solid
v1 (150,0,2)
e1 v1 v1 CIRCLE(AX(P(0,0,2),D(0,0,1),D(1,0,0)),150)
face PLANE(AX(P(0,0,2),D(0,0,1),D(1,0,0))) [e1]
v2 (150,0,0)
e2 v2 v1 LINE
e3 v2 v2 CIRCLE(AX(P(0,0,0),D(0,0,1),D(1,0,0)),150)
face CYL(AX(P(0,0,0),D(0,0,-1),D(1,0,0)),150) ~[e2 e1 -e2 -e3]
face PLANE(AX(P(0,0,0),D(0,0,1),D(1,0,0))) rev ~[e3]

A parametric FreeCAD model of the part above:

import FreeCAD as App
import Part
import Sketcher
Q = App.Units.Quantity

doc = App.newDocument("Part")
body = doc.addObject("PartDesign::Body", "Body")

# Sketch on XY plane
sketch1 = doc.addObject("Sketcher::SketchObject", "Sketch")
body.addObject(sketch1)
sketch1.AttachmentSupport = (doc.XY_Plane, [""])
sketch1.MapMode = "FlatFace"
sketch1.addGeometry(Part.Circle(App.Vector(0, 0, 0), App.Vector(0, 0, 1), 150), False)
sketch1.addConstraint(Sketcher.Constraint("Coincident", 0, 3, -1, 1))
sketch1.addConstraint(Sketcher.Constraint("Diameter", 0, Q("300 mm")))
pad1 = doc.addObject("PartDesign::Pad", "Pad")
body.addObject(pad1)
pad1.Profile = sketch1
pad1.Length = 2

doc.recompute()
